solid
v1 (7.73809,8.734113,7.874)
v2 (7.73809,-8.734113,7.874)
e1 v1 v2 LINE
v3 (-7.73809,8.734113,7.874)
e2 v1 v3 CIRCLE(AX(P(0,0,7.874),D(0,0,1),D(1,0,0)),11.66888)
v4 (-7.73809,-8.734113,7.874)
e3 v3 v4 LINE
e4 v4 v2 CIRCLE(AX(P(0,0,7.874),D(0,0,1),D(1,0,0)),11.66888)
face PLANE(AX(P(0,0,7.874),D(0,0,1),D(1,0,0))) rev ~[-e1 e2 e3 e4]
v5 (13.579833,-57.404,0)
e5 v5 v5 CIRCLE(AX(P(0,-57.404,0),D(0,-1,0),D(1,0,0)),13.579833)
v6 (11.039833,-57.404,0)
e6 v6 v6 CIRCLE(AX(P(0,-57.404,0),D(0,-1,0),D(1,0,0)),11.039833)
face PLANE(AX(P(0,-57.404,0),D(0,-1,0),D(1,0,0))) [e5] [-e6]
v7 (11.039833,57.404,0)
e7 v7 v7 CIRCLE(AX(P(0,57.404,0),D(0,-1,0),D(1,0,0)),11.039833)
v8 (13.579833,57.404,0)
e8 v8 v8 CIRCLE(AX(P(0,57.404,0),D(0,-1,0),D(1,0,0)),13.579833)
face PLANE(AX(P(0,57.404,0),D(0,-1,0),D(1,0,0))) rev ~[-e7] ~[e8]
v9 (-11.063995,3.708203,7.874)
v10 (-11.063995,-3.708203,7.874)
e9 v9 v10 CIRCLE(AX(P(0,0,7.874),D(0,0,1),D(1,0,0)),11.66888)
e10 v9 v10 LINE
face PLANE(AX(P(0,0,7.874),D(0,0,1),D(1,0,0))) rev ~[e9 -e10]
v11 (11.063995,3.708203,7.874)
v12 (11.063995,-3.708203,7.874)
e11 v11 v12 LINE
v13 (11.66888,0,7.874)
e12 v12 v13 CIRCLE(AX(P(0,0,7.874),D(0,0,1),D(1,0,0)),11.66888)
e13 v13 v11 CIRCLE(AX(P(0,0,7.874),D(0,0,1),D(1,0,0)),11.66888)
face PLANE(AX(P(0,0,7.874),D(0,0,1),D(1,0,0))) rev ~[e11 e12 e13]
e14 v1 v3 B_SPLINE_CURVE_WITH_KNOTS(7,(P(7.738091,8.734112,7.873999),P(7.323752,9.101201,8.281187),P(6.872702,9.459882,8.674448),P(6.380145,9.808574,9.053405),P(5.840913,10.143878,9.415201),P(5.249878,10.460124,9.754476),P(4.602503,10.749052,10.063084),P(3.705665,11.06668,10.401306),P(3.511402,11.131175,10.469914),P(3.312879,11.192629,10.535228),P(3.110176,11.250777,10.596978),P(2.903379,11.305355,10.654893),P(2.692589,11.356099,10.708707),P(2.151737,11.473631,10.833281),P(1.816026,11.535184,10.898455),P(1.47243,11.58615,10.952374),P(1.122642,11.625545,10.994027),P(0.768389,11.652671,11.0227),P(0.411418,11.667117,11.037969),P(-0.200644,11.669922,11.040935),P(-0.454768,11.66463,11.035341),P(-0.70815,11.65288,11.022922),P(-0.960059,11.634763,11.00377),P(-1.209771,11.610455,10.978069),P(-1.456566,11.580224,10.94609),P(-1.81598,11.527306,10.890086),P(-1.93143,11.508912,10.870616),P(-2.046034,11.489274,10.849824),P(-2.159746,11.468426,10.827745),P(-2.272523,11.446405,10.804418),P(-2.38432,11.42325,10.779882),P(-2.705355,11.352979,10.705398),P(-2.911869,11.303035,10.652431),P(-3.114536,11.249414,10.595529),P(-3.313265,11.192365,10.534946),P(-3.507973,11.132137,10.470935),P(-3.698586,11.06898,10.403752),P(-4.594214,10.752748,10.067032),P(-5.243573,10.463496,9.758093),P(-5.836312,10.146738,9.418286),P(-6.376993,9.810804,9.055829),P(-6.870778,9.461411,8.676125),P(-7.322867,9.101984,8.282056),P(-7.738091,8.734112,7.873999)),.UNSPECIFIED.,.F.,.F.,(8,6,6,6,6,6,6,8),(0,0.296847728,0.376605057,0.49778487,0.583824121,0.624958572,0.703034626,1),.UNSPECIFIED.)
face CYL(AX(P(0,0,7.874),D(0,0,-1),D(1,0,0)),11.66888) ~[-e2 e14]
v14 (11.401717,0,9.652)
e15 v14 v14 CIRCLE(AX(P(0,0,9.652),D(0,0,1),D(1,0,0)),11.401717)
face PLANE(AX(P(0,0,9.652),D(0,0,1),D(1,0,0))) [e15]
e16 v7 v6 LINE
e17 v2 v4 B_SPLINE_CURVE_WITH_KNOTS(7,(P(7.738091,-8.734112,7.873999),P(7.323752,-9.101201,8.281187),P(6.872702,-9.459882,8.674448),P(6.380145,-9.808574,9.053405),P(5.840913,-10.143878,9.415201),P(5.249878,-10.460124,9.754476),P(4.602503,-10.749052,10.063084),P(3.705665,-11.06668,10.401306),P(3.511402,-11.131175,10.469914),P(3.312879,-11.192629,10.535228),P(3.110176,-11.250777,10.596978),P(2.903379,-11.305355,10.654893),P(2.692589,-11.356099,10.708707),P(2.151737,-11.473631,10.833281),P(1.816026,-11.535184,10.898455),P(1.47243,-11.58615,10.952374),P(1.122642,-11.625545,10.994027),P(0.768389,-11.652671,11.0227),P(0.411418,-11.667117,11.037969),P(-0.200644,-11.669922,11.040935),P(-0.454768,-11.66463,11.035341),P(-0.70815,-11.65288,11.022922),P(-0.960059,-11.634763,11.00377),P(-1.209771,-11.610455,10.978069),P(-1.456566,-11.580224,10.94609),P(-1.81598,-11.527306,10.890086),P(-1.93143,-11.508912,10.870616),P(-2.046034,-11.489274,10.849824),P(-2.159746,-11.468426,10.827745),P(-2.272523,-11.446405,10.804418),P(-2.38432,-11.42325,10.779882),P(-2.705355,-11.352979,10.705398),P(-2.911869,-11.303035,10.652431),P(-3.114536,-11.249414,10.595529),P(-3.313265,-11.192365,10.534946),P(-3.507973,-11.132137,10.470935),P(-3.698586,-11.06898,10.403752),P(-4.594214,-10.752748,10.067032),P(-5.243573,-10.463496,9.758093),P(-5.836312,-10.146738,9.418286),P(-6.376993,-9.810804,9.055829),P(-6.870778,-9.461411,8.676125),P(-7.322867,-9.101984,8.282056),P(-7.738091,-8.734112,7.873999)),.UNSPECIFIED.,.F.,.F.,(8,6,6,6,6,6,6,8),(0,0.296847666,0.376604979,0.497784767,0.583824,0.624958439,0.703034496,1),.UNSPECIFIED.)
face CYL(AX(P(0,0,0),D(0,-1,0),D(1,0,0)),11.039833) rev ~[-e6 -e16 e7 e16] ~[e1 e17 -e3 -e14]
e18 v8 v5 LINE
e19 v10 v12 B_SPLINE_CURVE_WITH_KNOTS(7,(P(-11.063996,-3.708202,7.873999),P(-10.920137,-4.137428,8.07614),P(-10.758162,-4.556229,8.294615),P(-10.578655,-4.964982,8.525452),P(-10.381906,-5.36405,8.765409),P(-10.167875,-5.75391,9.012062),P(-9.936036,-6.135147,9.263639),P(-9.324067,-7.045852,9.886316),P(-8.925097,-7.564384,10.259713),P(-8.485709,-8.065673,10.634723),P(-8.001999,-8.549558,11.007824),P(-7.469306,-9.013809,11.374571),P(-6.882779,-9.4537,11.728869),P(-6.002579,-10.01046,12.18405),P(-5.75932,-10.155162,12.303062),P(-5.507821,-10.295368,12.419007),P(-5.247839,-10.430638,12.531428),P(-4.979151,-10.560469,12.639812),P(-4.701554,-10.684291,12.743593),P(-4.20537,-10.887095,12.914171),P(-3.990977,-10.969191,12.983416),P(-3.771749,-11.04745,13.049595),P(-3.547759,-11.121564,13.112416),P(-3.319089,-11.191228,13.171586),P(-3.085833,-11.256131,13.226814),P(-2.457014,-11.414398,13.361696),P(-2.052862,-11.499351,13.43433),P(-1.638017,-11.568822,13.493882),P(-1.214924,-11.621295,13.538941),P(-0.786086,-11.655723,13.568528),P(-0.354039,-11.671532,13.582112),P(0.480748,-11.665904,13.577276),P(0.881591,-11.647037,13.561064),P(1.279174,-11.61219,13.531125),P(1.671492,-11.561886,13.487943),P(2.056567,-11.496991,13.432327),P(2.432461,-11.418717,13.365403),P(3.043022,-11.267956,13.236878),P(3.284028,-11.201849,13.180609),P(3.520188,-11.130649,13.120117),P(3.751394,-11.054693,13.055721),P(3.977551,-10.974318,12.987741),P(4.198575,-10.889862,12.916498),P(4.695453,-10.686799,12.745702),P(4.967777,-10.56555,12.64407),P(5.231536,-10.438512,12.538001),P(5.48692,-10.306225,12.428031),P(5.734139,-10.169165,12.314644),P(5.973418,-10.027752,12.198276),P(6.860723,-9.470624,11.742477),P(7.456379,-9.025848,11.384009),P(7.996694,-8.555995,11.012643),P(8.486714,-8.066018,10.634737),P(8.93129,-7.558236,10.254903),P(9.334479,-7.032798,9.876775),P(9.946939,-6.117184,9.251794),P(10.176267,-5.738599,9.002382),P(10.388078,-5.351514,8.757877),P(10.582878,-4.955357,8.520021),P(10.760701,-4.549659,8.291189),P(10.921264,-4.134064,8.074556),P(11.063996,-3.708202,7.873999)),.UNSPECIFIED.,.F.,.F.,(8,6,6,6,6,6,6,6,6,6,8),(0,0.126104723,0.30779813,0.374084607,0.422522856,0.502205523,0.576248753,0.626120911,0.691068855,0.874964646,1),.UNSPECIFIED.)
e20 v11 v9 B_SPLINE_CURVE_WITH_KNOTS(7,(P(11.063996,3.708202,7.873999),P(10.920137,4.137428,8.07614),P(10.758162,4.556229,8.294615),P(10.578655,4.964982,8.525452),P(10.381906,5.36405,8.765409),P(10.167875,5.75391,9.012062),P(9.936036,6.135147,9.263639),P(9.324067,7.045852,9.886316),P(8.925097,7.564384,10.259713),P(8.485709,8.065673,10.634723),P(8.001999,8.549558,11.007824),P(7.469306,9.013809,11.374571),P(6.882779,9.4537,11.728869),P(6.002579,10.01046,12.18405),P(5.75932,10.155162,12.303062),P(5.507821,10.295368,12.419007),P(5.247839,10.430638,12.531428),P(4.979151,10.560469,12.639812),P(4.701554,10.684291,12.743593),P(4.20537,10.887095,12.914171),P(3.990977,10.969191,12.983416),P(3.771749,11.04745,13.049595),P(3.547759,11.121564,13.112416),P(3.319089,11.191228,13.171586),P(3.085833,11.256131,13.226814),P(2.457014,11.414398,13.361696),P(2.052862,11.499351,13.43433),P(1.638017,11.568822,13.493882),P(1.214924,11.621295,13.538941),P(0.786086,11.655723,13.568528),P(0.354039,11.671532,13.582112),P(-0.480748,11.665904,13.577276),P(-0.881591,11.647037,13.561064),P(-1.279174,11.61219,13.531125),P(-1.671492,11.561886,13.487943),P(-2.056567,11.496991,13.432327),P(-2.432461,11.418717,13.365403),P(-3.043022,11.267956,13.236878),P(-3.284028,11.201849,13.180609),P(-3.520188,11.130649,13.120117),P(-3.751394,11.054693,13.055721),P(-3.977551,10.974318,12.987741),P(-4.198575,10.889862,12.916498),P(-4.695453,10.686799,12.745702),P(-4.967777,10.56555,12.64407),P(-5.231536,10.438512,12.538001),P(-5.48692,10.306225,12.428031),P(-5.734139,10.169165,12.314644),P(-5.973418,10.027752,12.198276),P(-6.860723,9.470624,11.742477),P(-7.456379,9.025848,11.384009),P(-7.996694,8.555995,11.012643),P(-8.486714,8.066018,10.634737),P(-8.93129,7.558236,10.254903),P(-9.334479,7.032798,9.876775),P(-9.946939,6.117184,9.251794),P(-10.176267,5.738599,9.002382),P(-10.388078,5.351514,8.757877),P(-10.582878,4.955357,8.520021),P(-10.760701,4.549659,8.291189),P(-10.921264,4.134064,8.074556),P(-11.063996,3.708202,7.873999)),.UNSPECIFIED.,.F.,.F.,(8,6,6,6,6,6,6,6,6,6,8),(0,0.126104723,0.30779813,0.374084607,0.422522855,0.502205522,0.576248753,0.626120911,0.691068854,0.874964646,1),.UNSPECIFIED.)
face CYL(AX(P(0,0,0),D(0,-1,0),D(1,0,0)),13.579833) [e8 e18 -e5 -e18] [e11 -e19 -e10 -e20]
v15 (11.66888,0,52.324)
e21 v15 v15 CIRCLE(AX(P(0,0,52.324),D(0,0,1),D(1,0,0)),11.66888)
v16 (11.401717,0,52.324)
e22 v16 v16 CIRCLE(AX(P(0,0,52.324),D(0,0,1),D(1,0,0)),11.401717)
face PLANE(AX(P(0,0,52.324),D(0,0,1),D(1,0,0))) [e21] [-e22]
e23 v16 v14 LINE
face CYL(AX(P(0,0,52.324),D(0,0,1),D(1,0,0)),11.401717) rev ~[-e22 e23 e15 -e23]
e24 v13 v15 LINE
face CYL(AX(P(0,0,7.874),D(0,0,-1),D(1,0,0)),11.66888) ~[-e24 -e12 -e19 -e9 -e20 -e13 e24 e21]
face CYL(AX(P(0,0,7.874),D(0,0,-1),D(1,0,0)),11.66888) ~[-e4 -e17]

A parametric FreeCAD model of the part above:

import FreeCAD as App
import Part
import Sketcher
Q = App.Units.Quantity


def faces_at(feature, points):
    """Names of the faces that lie closest to the given points."""
    faces = feature.Shape.Faces
    near = lambda p: min(range(len(faces)), key=lambda i: faces[i].distToShape(Part.Vertex(*p))[0])
    return sorted({f"Face{near(p) + 1}" for p in points})

doc = App.newDocument("Part")
body = doc.addObject("PartDesign::Body", "Body")

# Sketch on XZ plane
sketch1 = body.newObject("Sketcher::SketchObject", "Sketch")
sketch1.AttachmentSupport = (doc.getObject("XZ_Plane"), [""])
sketch1.MapMode = "FlatFace"
sketch1.addGeometry(Part.Circle(App.Vector(0, 0, 0), App.Vector(0, 0, 1), 14), False)
sketch1.addConstraint(Sketcher.Constraint("Coincident", 0, 3, -1, 1))
sketch1.addConstraint(Sketcher.Constraint("Diameter", 0, Q("27.159666 mm")))
pad1 = body.newObject("PartDesign::Pad", "Pad")
pad1.Profile = sketch1
pad1.Length = Q("4.52 in")
pad1.Midplane = True
doc.recompute()

thickness = body.newObject("PartDesign::Thickness", "Thickness")
thickness.Base = (pad1, faces_at(pad1, [(0, -57.404, 0), (0, 57.404, 0)]))
thickness.Value = Q("0.1 in")
thickness.Reversed = True
thickness.Join = "Arc"

# Sketch on XY plane
sketch2 = body.newObject("Sketcher::SketchObject", "Sketch001")
sketch2.AttachmentSupport = (doc.getObject("XY_Plane"), [""])
sketch2.MapMode = "FlatFace"
sketch2.AttachmentOffset = App.Placement(App.Vector(0, 0, 0.31 * 25.4), App.Rotation())
sketch2.addGeometry(Part.Circle(App.Vector(0, 0, 0), App.Vector(0, 0, 1), 12), False)
sketch2.addConstraint(Sketcher.Constraint("Coincident", 0, 3, -1, 1))
sketch2.addConstraint(Sketcher.Constraint("Diameter", 0, Q("23.33776 mm")))
pad2 = body.newObject("PartDesign::Pad", "Pad001")
pad2.Profile = sketch2
pad2.Length = Q("1.75 in")

# Sketch on XY plane
sketch3 = body.newObject("Sketcher::SketchObject", "Sketch002")
sketch3.AttachmentSupport = (doc.getObject("XY_Plane"), [""])
sketch3.MapMode = "FlatFace"
sketch3.AttachmentOffset = App.Placement(App.Vector(0, 0, 2.06 * 25.4), App.Rotation())
sketch3.addGeometry(Part.Circle(App.Vector(0, 0, 0), App.Vector(0, 0, 1), 11), False)
sketch3.addConstraint(Sketcher.Constraint("Coincident", 0, 3, -1, 1))
sketch3.addConstraint(Sketcher.Constraint("Diameter", 0, Q("22.803434 mm")))
pocket1 = body.newObject("PartDesign::Pocket", "Pocket")
pocket1.Profile = sketch3
pocket1.Length = Q("1.68 in")

doc.recompute()
